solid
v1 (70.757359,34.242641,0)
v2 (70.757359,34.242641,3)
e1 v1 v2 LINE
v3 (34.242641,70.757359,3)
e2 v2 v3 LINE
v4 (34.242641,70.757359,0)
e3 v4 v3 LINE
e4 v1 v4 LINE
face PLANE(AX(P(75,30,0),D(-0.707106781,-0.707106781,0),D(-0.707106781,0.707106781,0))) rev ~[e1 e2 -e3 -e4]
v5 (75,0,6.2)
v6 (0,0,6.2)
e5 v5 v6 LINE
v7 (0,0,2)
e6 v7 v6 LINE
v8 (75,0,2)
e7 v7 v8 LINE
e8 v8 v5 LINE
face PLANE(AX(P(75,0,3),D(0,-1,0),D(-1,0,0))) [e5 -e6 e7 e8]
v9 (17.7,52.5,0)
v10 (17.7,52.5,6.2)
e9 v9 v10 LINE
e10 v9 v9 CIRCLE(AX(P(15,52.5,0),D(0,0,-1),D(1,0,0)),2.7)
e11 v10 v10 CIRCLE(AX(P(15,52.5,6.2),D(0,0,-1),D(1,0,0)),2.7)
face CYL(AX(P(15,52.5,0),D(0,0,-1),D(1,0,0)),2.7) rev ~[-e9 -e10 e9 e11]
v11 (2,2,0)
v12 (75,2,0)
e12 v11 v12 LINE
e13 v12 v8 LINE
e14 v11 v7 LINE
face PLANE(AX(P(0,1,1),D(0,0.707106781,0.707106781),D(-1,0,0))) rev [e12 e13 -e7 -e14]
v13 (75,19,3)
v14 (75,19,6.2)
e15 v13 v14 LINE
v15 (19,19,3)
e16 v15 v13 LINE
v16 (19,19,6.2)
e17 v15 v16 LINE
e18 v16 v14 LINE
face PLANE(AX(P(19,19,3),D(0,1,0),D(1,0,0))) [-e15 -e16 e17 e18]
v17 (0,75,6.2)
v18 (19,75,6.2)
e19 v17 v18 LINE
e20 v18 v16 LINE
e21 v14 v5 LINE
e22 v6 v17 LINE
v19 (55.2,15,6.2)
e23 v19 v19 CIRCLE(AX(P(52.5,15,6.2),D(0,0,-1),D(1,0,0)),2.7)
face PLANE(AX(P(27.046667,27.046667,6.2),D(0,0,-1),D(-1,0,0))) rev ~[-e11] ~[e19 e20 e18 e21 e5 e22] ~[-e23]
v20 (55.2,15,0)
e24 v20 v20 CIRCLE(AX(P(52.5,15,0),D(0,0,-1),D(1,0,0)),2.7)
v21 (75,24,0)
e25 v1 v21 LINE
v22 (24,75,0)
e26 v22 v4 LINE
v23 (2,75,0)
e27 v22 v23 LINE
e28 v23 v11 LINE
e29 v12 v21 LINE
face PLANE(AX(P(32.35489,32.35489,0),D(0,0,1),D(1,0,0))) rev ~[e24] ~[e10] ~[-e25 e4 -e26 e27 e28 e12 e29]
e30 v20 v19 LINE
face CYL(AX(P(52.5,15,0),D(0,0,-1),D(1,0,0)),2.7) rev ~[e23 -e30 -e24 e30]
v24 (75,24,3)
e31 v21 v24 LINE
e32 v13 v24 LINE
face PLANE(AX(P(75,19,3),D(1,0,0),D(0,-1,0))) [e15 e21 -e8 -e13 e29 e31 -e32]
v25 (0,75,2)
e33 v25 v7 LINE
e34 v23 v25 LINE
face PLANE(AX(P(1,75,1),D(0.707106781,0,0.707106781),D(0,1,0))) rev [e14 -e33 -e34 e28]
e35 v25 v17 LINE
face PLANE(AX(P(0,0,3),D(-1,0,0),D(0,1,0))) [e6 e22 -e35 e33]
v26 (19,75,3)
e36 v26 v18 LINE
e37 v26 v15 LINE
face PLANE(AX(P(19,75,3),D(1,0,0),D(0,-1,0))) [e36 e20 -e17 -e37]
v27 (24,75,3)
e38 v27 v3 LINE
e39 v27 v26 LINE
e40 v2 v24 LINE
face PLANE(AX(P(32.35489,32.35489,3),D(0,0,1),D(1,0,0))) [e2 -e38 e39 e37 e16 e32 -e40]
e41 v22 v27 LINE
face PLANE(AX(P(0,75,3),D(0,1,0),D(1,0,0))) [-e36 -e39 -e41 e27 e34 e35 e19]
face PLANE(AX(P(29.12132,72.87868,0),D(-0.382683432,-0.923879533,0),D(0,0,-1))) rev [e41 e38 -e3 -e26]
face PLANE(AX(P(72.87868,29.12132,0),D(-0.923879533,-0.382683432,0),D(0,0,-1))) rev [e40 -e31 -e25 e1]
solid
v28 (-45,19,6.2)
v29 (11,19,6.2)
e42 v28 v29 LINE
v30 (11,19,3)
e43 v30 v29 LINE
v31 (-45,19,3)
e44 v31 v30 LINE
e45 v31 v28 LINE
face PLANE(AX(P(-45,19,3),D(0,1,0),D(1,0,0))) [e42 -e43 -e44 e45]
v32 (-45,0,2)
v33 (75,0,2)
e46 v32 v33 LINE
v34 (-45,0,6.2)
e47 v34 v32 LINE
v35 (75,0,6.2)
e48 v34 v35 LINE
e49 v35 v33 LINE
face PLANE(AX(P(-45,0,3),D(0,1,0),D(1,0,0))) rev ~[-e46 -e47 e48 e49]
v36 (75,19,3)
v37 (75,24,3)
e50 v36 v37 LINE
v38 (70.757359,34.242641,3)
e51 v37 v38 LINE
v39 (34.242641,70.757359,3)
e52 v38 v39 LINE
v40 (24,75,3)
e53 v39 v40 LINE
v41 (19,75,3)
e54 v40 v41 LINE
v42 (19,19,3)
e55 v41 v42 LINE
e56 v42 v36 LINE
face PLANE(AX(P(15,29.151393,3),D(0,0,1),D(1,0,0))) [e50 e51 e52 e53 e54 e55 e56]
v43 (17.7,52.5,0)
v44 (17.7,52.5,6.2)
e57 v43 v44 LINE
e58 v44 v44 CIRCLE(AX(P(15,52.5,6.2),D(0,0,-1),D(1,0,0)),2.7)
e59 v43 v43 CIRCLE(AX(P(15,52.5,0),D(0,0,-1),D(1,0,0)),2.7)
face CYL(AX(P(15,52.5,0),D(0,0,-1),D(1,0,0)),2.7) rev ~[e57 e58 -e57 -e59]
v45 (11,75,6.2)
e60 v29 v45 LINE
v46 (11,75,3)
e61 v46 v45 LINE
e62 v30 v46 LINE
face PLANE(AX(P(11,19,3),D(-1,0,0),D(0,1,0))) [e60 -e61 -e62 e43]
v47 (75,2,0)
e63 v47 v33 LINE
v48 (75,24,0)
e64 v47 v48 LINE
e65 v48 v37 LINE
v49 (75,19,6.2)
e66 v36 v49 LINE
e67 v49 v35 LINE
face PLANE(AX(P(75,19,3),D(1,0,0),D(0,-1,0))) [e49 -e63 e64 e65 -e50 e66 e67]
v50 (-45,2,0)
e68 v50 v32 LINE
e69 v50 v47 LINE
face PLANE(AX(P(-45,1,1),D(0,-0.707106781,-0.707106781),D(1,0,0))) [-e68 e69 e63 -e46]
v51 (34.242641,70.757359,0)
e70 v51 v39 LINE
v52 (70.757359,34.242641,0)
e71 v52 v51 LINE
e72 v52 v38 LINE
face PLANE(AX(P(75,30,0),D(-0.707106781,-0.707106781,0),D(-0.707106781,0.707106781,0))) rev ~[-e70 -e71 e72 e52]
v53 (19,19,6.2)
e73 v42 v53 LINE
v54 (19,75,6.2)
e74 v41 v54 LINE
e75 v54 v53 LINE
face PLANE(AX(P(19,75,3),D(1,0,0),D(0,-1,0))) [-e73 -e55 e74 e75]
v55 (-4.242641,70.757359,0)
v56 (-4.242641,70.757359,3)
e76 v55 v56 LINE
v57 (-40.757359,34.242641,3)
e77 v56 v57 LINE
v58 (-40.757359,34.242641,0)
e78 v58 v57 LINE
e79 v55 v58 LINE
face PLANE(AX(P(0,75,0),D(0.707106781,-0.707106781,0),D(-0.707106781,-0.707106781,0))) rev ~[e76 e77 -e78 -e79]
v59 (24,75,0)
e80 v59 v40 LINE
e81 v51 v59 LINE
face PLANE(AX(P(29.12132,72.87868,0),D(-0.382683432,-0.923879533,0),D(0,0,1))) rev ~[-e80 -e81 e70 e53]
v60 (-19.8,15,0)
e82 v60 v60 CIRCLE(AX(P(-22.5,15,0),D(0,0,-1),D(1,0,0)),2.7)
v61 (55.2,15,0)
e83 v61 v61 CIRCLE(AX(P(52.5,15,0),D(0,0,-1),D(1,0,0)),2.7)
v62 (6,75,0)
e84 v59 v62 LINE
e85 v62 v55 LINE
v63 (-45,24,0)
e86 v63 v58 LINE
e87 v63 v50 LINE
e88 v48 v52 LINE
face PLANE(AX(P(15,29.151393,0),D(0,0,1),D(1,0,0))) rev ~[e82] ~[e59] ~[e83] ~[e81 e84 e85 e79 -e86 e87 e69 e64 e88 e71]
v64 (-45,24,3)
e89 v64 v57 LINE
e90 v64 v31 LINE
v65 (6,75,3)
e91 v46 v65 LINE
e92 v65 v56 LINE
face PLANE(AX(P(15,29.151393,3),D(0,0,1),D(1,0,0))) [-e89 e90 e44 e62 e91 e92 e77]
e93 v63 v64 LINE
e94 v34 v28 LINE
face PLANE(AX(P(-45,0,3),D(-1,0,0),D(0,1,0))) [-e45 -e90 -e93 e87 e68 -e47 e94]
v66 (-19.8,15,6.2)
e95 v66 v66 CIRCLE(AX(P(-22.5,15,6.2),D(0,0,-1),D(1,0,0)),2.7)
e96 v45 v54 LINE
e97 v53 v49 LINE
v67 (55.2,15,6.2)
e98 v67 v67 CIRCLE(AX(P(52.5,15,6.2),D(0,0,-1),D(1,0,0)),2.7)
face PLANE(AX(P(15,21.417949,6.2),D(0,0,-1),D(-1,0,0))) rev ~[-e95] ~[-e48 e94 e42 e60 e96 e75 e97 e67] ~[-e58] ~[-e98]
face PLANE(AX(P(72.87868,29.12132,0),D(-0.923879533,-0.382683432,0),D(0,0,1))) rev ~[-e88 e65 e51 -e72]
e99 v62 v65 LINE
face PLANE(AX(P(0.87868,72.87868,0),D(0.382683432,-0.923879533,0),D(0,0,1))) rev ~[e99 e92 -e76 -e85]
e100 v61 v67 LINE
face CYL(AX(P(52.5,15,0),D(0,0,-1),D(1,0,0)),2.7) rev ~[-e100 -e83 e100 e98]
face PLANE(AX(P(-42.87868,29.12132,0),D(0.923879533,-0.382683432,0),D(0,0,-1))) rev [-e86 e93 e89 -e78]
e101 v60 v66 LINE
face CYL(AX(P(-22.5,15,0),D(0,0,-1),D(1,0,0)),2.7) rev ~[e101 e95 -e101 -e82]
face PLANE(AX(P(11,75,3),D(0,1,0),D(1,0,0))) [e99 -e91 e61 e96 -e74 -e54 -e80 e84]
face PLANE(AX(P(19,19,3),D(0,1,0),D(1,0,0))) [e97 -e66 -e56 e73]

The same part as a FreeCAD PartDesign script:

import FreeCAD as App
import Part
import Sketcher

V = App.Vector


def edges_at(feature, points):
    """Names of the edges that pass closest to the given points."""
    edges = feature.Shape.Edges
    near = lambda p: min(range(len(edges)), key=lambda i: edges[i].distToShape(Part.Vertex(*p))[0])
    return sorted({f"Edge{near(p) + 1}" for p in points})


def add_polygon(sketch, points):
    """Adds a closed chain of lines whose ends are joined by coincident constraints."""
    first, n = sketch.GeometryCount, len(points)
    for a, b in zip(points, points[1:] + points[:1]):
        sketch.addGeometry(Part.LineSegment(App.Vector(*a, 0), App.Vector(*b, 0)), False)
    for i in range(n):
        sketch.addConstraint(Sketcher.Constraint("Coincident", first + i, 2, first + (i + 1) % n, 1))

doc = App.newDocument("Part")
body = doc.addObject("PartDesign::Body", "Body")

# Sketch on XY plane
sketch1 = doc.addObject("Sketcher::SketchObject", "Sketch")
body.addObject(sketch1)
sketch1.AttachmentSupport = (doc.XY_Plane, [""])
sketch1.MapMode = "FlatFace"
add_polygon(sketch1, [(75, 0), (75, 30), (30, 75), (0, 75), (0, 0)])  # lines 0-4
sketch1.addConstraint(Sketcher.Constraint("Vertical", 0))
sketch1.addConstraint(Sketcher.Constraint("Horizontal", 2))
sketch1.addConstraint(Sketcher.Constraint("Vertical", 3))
sketch1.addConstraint(Sketcher.Constraint("Horizontal", 4))
sketch1.addConstraint(Sketcher.Constraint("Coincident", 3, 2, -1, 1))
sketch1.addConstraint(Sketcher.Constraint("Equal", 2, 0))
sketch1.addConstraint(Sketcher.Constraint("Equal", 4, 3))
sketch1.addConstraint(Sketcher.Constraint("DistanceX", 2, 2, 2, 1, 30.0))
sketch1.addConstraint(Sketcher.Constraint("DistanceX", 4, 1, 4, 2, 75.0))
pad1 = doc.addObject("PartDesign::Pad", "Pad")
body.addObject(pad1)
pad1.Profile = sketch1
pad1.Length = 3

# Sketch on XY plane
sketch2 = doc.addObject("Sketcher::SketchObject", "Sketch001")
body.addObject(sketch2)
sketch2.AttachmentSupport = (doc.XY_Plane, [""])
sketch2.MapMode = "FlatFace"
sketch2.AttachmentOffset = App.Placement(V(0, 0, 3), App.Rotation())
add_polygon(sketch2, [(19, 75), (0, 75), (0, 0), (75, 0), (75, 19), (19, 19)])  # lines 0-5
sketch2.addConstraint(Sketcher.Constraint("Horizontal", 0))
sketch2.addConstraint(Sketcher.Constraint("Vertical", 1))
sketch2.addConstraint(Sketcher.Constraint("Horizontal", 2))
sketch2.addConstraint(Sketcher.Constraint("Vertical", 3))
sketch2.addConstraint(Sketcher.Constraint("Horizontal", 4))
sketch2.addConstraint(Sketcher.Constraint("Vertical", 5))
sketch2.addConstraint(Sketcher.Constraint("Coincident", 1, 2, -1, 1))
sketch2.addConstraint(Sketcher.Constraint("Equal", 2, 1))
sketch2.addConstraint(Sketcher.Constraint("Equal", 0, 3))
sketch2.addConstraint(Sketcher.Constraint("DistanceX", 0, 2, 0, 1, 19.0))
sketch2.addConstraint(Sketcher.Constraint("DistanceX", 2, 1, 2, 2, 75.0))
pad2 = doc.addObject("PartDesign::Pad", "Pad001")
body.addObject(pad2)
pad2.Profile = sketch2
pad2.Length = 3.2

# Sketch on XY plane
sketch3 = doc.addObject("Sketcher::SketchObject", "Sketch002")
body.addObject(sketch3)
sketch3.AttachmentSupport = (doc.XY_Plane, [""])
sketch3.MapMode = "FlatFace"
sketch3.addGeometry(Part.Circle(V(52.5, 15, 0), V(0, 0, 1), 2.7), False)
sketch3.addGeometry(Part.Circle(V(15, 52.5, 0), V(0, 0, 1), 2.7), False)
sketch3.addConstraint(Sketcher.Constraint("Equal", 0, 1))
sketch3.addConstraint(Sketcher.Constraint("Diameter", 0, 5.4))
sketch3.addConstraint(Sketcher.Constraint("DistanceY", -1, 1, 0, 3, 15.0))
sketch3.addConstraint(Sketcher.Constraint("DistanceX", -1, 1, 1, 3, 15.0))
sketch3.addConstraint(Sketcher.Constraint("DistanceX", -1, 1, 0, 3, 52.5))
sketch3.addConstraint(Sketcher.Constraint("DistanceY", -1, 1, 1, 3, 52.5))
pocket1 = doc.addObject("PartDesign::Pocket", "Pocket")
body.addObject(pocket1)
pocket1.Profile = sketch3
pocket1.Length = 8
pocket1.Reversed = True
doc.recompute()

chamfer = doc.addObject("PartDesign::Chamfer", "Chamfer")
body.addObject(chamfer)
chamfer.Base = (pocket1, edges_at(pocket1, [(37.5, 0, 0), (0, 37.5, 0)]))
chamfer.Size = 2
doc.recompute()

chamfer2 = doc.addObject("PartDesign::Chamfer", "Chamfer001")
body.addObject(chamfer2)
chamfer2.Base = (chamfer, edges_at(chamfer, [(75, 30, 1.5), (30, 75, 1.5)]))
chamfer2.Size = 6
body2 = doc.addObject("PartDesign::Body", "Body001")

# Sketch on XY plane
sketch4 = doc.addObject("Sketcher::SketchObject", "Sketch003")
body2.addObject(sketch4)
sketch4.AttachmentSupport = (doc.getObject("XY_Plane001"), [""])
sketch4.MapMode = "FlatFace"
add_polygon(sketch4, [(75, 0), (75, 30), (30, 75), (0, 75), (-45, 30), (-45, 0)])  # lines 0-5
sketch4.addConstraint(Sketcher.Constraint("Vertical", 0))
sketch4.addConstraint(Sketcher.Constraint("Horizontal", 2))
sketch4.addConstraint(Sketcher.Constraint("Vertical", 4))
sketch4.addConstraint(Sketcher.Constraint("Horizontal", 5))
sketch4.addConstraint(Sketcher.Constraint("PointOnObject", 2, 2, -2))
sketch4.addConstraint(Sketcher.Constraint("PointOnObject", 4, 2, -1))
sketch4.addConstraint(Sketcher.Constraint("Perpendicular", 1, 3))
sketch4.addConstraint(Sketcher.Constraint("Horizontal", 0, 2, 3, 2))
sketch4.addConstraint(Sketcher.Constraint("Equal", 2, 0))
sketch4.addConstraint(Sketcher.Constraint("Equal", 1, 3))
sketch4.addConstraint(Sketcher.Constraint("DistanceX", 2, 2, 2, 1, 30.0))
sketch4.addConstraint(Sketcher.Constraint("DistanceX", 5, 1, 5, 2, 120.0))
pad3 = doc.addObject("PartDesign::Pad", "Pad002")
body2.addObject(pad3)
pad3.Profile = sketch4
pad3.Length = 3

# Sketch on XY plane
sketch5 = doc.addObject("Sketcher::SketchObject", "Sketch004")
body2.addObject(sketch5)
sketch5.AttachmentSupport = (doc.getObject("XY_Plane001"), [""])
sketch5.MapMode = "FlatFace"
sketch5.AttachmentOffset = App.Placement(V(0, 0, 3), App.Rotation())
add_polygon(sketch5, [(19, 19), (19, 75), (11, 75), (11, 19), (-45, 19), (-45, 0), (75, 0), (75, 19)])  # lines 0-7
sketch5.addConstraint(Sketcher.Constraint("Vertical", 0))
sketch5.addConstraint(Sketcher.Constraint("Horizontal", 1))
sketch5.addConstraint(Sketcher.Constraint("Vertical", 2))
sketch5.addConstraint(Sketcher.Constraint("Horizontal", 3))
sketch5.addConstraint(Sketcher.Constraint("Vertical", 4))
sketch5.addConstraint(Sketcher.Constraint("Horizontal", 5))
sketch5.addConstraint(Sketcher.Constraint("Vertical", 6))
sketch5.addConstraint(Sketcher.Constraint("Horizontal", 7))
sketch5.addConstraint(Sketcher.Constraint("PointOnObject", 4, 2, -1))
sketch5.addConstraint(Sketcher.Constraint("Horizontal", 3, 2, 6, 2))
sketch5.addConstraint(Sketcher.Constraint("Equal", 3, 7))
sketch5.addConstraint(Sketcher.Constraint("Equal", 7, 0))
sketch5.addConstraint(Sketcher.Constraint("DistanceX", 1, 2, 1, 1, 8.0))
sketch5.addConstraint(Sketcher.Constraint("DistanceX", 3, 2, 3, 1, 56.0))
sketch5.addConstraint(Sketcher.Constraint("DistanceY", 4, 2, 4, 1, 19.0))
sketch5.addConstraint(Sketcher.Constraint("DistanceX", -1, 1, 0, 2, 19.0))
pad4 = doc.addObject("PartDesign::Pad", "Pad003")
body2.addObject(pad4)
pad4.Profile = sketch5
pad4.Length = 3.2

# Sketch on XY plane
sketch6 = doc.addObject("Sketcher::SketchObject", "Sketch005")
body2.addObject(sketch6)
sketch6.AttachmentSupport = (doc.getObject("XY_Plane001"), [""])
sketch6.MapMode = "FlatFace"
sketch6.addGeometry(Part.Circle(V(52.5, 15, 0), V(0, 0, 1), 2.7), False)
sketch6.addGeometry(Part.Circle(V(15, 52.5, 0), V(0, 0, 1), 2.7), False)
sketch6.addGeometry(Part.Circle(V(-22.5, 15, 0), V(0, 0, 1), 2.7), False)
sketch6.addConstraint(Sketcher.Constraint("Equal", 0, 1))
sketch6.addConstraint(Sketcher.Constraint("Equal", 1, 2))
sketch6.addConstraint(Sketcher.Constraint("Horizontal", 0, 3, 2, 3))
sketch6.addConstraint(Sketcher.Constraint("Diameter", 0, 5.4))
sketch6.addConstraint(Sketcher.Constraint("DistanceY", -1, 1, 0, 3, 15.0))
sketch6.addConstraint(Sketcher.Constraint("DistanceX", -1, 1, 1, 3, 15.0))
sketch6.addConstraint(Sketcher.Constraint("DistanceX", 2, 3, 0, 3, 75.0))
sketch6.addConstraint(Sketcher.Constraint("DistanceX", -1, 1, 0, 3, 52.5))
sketch6.addConstraint(Sketcher.Constraint("DistanceY", -1, 1, 1, 3, 52.5))
pocket2 = doc.addObject("PartDesign::Pocket", "Pocket001")
body2.addObject(pocket2)
pocket2.Profile = sketch6
pocket2.Length = 8
pocket2.Reversed = True
doc.recompute()

chamfer3 = doc.addObject("PartDesign::Chamfer", "Chamfer002")
body2.addObject(chamfer3)
chamfer3.Base = (pocket2, edges_at(pocket2, [(15, 0, 0)]))
chamfer3.Size = 2
doc.recompute()

chamfer4 = doc.addObject("PartDesign::Chamfer", "Chamfer003")
body2.addObject(chamfer4)
chamfer4.Base = (chamfer3, edges_at(chamfer3, [
    (0, 75, 1.5),
    (-45, 30, 1.5),
    (30, 75, 1.5),
    (75, 30, 1.5),
]))
chamfer4.Size = 6

doc.recompute()
